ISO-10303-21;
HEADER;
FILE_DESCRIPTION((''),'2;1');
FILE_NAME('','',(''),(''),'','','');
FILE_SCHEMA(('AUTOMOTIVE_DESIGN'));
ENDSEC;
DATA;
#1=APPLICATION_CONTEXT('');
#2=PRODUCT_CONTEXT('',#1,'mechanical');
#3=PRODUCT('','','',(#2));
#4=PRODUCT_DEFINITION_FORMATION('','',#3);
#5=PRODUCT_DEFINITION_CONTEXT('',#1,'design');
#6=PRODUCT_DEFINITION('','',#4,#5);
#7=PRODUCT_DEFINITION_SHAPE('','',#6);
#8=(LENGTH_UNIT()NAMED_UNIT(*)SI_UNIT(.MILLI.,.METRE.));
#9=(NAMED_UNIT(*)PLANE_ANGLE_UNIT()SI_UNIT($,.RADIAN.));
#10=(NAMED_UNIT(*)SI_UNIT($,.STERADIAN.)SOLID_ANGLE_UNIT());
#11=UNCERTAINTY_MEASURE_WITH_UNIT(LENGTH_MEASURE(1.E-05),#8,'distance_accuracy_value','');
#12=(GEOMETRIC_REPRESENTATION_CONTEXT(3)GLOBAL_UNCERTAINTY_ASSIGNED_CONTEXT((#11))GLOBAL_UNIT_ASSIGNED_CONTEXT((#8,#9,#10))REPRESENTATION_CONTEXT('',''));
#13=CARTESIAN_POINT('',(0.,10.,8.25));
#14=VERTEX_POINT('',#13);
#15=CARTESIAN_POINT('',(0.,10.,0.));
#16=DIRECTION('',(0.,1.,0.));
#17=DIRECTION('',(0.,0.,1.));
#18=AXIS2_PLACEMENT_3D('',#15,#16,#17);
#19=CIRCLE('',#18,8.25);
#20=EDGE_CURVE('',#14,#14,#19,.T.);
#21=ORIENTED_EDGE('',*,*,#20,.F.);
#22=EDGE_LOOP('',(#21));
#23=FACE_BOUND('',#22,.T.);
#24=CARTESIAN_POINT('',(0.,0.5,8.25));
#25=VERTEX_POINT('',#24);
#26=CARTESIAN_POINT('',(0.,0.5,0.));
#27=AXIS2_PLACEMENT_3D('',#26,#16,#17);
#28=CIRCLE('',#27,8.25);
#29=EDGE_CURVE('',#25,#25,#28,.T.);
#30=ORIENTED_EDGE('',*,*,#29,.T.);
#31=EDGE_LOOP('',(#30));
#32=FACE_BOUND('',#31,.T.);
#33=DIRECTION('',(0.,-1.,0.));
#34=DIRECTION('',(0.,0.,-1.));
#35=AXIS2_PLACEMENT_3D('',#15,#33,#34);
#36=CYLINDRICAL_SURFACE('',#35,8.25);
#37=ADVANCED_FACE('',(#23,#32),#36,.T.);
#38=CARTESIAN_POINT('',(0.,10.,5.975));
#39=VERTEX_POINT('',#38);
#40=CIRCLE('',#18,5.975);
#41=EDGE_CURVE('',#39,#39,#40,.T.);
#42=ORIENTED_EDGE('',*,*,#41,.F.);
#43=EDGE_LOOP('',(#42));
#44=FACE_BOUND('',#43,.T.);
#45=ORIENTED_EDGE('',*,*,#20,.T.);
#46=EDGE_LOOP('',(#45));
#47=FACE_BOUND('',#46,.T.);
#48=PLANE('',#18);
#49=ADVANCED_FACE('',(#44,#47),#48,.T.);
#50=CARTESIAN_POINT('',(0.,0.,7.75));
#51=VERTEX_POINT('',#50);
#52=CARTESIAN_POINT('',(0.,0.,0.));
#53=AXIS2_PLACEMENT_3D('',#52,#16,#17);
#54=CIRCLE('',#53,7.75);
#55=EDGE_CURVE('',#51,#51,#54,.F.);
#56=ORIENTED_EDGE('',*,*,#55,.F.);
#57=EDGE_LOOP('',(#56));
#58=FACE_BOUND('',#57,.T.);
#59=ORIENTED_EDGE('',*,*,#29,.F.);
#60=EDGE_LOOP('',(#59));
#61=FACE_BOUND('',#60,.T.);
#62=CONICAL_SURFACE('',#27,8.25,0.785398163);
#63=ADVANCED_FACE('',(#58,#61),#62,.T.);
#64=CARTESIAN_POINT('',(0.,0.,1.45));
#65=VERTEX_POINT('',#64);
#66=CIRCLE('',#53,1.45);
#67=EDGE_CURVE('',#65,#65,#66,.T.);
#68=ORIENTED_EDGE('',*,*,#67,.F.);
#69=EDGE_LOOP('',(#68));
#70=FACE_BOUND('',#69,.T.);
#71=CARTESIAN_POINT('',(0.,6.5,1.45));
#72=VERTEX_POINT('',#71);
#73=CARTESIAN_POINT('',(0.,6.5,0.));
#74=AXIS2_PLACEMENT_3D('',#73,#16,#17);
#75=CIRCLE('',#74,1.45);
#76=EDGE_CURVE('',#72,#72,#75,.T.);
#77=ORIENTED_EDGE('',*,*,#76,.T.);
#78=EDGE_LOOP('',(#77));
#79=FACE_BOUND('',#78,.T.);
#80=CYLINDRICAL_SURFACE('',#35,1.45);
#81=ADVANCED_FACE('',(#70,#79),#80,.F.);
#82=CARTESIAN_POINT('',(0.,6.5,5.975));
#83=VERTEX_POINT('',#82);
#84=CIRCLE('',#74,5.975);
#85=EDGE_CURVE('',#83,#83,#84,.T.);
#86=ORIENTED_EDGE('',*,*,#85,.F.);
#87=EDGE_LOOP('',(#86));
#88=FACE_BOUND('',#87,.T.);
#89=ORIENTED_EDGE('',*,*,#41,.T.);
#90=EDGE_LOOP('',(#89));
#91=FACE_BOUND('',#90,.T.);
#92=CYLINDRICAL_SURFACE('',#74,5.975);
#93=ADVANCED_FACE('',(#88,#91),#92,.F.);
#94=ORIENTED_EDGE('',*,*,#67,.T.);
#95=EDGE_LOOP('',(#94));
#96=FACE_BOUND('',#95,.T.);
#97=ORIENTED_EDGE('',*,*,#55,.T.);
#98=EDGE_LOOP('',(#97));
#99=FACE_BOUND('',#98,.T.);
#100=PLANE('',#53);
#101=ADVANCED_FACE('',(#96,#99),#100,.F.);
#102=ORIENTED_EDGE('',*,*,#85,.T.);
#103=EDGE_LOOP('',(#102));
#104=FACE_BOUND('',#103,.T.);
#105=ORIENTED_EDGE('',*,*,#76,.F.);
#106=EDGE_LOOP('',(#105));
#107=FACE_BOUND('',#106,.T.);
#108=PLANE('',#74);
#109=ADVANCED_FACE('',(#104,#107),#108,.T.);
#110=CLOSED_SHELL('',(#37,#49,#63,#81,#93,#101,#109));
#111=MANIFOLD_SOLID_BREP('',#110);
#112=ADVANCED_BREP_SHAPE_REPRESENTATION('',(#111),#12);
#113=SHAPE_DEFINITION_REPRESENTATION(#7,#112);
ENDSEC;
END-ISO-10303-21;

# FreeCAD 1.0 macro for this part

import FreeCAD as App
import Part
import Sketcher
from FreeCAD import Vector


def edges_at(feature, points):
    """Names of the edges that pass closest to the given points."""
    edges = feature.Shape.Edges
    near = lambda p: min(range(len(edges)), key=lambda i: edges[i].distToShape(Part.Vertex(*p))[0])
    return sorted({f"Edge{near(p) + 1}" for p in points})

doc = App.newDocument("Part")
params = doc.addObject("Spreadsheet::Sheet", "Params")
for row, (alias, value) in enumerate([
    ("sketch1_diameter", "16.5 mm"),
    ("sketch1_diameter2", "2.9 mm"),
    ("pad1_length", "10 mm"),
    ("sketch2_diameter", "11.95 mm"),
    ("pocket1_length", "3.5 mm"),
    ("chamfer_size", "0.5 mm"),
], start=1):
    params.set(f"A{row}", alias)
    params.set(f"B{row}", "=" + value)
    params.setAlias(f"B{row}", alias)

body = doc.addObject("PartDesign::Body", "Body")

# Sketch on XZ plane
sketch1 = body.newObject("Sketcher::SketchObject", "Sketch")
sketch1.AttachmentSupport = (doc.getObject("XZ_Plane"), [""])
sketch1.MapMode = "FlatFace"
sketch1.addGeometry(Part.Circle(Vector(0, 0, 0), Vector(0, 0, 1), 8.2), False)
sketch1.addGeometry(Part.Circle(Vector(0, 0, 0), Vector(0, 0, 1), 1.4), False)
sketch1.addConstraint(Sketcher.Constraint("Coincident", 0, 3, -1, 1))
sketch1.addConstraint(Sketcher.Constraint("Coincident", 1, 3, -1, 1))
sketch1.addConstraint(Sketcher.Constraint("Diameter", 0, 16.5))
sketch1.addConstraint(Sketcher.Constraint("Diameter", 1, 2.9))
sketch1.setExpression("Constraints[2]", "Params.sketch1_diameter")
sketch1.setExpression("Constraints[3]", "Params.sketch1_diameter2")
pad1 = body.newObject("PartDesign::Pad", "Pad")
pad1.Profile = sketch1
pad1.setExpression("Length", "Params.pad1_length")
pad1.Reversed = True

# Sketch on XZ plane
sketch2 = body.newObject("Sketcher::SketchObject", "Sketch001")
sketch2.AttachmentSupport = (doc.getObject("XZ_Plane"), [""])
sketch2.MapMode = "FlatFace"
sketch2.AttachmentOffset = App.Placement(Vector(0, 0, -10), App.Rotation())
sketch2.addGeometry(Part.Circle(Vector(0, 0, 0), Vector(0, 0, 1), 6), False)
sketch2.addConstraint(Sketcher.Constraint("Coincident", 0, 3, -1, 1))
sketch2.addConstraint(Sketcher.Constraint("Diameter", 0, 11.95))
sketch2.setExpression("Constraints[1]", "Params.sketch2_diameter")
pocket1 = body.newObject("PartDesign::Pocket", "Pocket")
pocket1.Profile = sketch2
pocket1.setExpression("Length", "Params.pocket1_length")
pocket1.Reversed = True
doc.recompute()

chamfer = body.newObject("PartDesign::Chamfer", "Chamfer")
chamfer.Base = (pocket1, edges_at(pocket1, [(0, 0, -8.25)]))
chamfer.setExpression("Size", "Params.chamfer_size")

doc.recompute()
